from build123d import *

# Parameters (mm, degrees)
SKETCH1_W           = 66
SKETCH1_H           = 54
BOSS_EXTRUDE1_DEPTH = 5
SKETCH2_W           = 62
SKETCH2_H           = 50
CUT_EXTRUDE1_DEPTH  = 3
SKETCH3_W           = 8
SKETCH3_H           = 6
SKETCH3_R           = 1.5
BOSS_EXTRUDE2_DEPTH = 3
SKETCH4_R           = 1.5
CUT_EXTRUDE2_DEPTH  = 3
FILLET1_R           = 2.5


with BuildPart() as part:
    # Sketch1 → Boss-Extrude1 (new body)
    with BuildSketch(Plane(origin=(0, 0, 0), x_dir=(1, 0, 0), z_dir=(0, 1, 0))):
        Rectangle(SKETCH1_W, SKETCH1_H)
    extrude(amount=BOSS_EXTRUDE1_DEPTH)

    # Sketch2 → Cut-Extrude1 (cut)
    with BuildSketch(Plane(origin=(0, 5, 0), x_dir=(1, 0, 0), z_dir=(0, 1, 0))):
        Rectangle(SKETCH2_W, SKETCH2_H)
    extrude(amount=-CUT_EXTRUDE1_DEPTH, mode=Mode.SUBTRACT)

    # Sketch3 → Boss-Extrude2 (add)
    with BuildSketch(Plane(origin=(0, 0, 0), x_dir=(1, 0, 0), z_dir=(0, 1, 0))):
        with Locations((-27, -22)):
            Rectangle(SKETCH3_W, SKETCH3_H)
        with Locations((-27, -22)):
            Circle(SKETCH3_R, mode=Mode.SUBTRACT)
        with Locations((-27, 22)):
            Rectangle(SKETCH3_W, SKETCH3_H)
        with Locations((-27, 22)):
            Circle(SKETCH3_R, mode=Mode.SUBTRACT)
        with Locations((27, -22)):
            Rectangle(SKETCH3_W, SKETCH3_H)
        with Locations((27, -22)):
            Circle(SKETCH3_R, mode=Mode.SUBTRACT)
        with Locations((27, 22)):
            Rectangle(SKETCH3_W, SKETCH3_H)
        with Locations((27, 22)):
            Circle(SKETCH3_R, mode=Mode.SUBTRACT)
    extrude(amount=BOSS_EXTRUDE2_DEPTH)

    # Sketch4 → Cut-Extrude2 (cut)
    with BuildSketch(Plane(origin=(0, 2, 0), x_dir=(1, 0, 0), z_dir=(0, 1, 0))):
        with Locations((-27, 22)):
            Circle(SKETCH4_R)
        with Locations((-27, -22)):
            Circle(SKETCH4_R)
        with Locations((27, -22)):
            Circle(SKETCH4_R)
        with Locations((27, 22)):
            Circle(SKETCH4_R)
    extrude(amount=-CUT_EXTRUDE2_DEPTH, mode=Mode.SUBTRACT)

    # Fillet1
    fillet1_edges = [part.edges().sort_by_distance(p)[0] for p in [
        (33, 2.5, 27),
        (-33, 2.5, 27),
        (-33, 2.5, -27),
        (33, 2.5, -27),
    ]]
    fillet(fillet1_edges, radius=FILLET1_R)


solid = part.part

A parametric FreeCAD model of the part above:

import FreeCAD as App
import Part
import Sketcher


def edges_at(feature, points):
    """Names of the edges that pass closest to the given points."""
    edges = feature.Shape.Edges
    near = lambda p: min(range(len(edges)), key=lambda i: edges[i].distToShape(Part.Vertex(*p))[0])
    return sorted({f"Edge{near(p) + 1}" for p in points})

doc = App.newDocument("Part")
body = doc.addObject("PartDesign::Body", "Body")

sketch1 = body.newObject("Sketcher::SketchObject", "Sketch")
sketch1.AttachmentSupport = (doc.getObject("XZ_Plane"), [""])
sketch1.MapMode = "FlatFace"
sketch1.addGeometry(Part.LineSegment(App.Vector(-33, -27, 0), App.Vector(-33, 27, 0)), False)
sketch1.addGeometry(Part.LineSegment(App.Vector(-33, 27, 0), App.Vector(33, 27, 0)), False)
sketch1.addGeometry(Part.LineSegment(App.Vector(33, 27, 0), App.Vector(33, -27, 0)), False)
sketch1.addGeometry(Part.LineSegment(App.Vector(33, -27, 0), App.Vector(-33, -27, 0)), False)
sketch1.addConstraint(Sketcher.Constraint("Coincident", 0, 2, 1, 1))
sketch1.addConstraint(Sketcher.Constraint("Coincident", 1, 2, 2, 1))
sketch1.addConstraint(Sketcher.Constraint("Coincident", 2, 2, 3, 1))
sketch1.addConstraint(Sketcher.Constraint("Coincident", 3, 2, 0, 1))
sketch1.addConstraint(Sketcher.Constraint("Vertical", 0))
sketch1.addConstraint(Sketcher.Constraint("Horizontal", 1))
sketch1.addConstraint(Sketcher.Constraint("Vertical", 2))
sketch1.addConstraint(Sketcher.Constraint("Horizontal", 3))
sketch1.addConstraint(Sketcher.Constraint("Symmetric", 0, 2, 2, 2, -1, 1))
sketch1.addConstraint(Sketcher.Constraint("DistanceX", 1, 1, 1, 2, 66.0))
sketch1.addConstraint(Sketcher.Constraint("DistanceY", 0, 1, 0, 2, 54.0))
pad1 = body.newObject("PartDesign::Pad", "Pad")
pad1.Profile = sketch1
pad1.Length = 5
pad1.Reversed = True

sketch2 = body.newObject("Sketcher::SketchObject", "Sketch001")
sketch2.AttachmentSupport = (doc.getObject("XZ_Plane"), [""])
sketch2.MapMode = "FlatFace"
sketch2.AttachmentOffset = App.Placement(App.Vector(0, 0, -5), App.Rotation())
sketch2.addGeometry(Part.LineSegment(App.Vector(-31, -25, 0), App.Vector(-31, 25, 0)), False)
sketch2.addGeometry(Part.LineSegment(App.Vector(-31, 25, 0), App.Vector(31, 25, 0)), False)
sketch2.addGeometry(Part.LineSegment(App.Vector(31, 25, 0), App.Vector(31, -25, 0)), False)
sketch2.addGeometry(Part.LineSegment(App.Vector(31, -25, 0), App.Vector(-31, -25, 0)), False)
sketch2.addConstraint(Sketcher.Constraint("Coincident", 0, 2, 1, 1))
sketch2.addConstraint(Sketcher.Constraint("Coincident", 1, 2, 2, 1))
sketch2.addConstraint(Sketcher.Constraint("Coincident", 2, 2, 3, 1))
sketch2.addConstraint(Sketcher.Constraint("Coincident", 3, 2, 0, 1))
sketch2.addConstraint(Sketcher.Constraint("Vertical", 0))
sketch2.addConstraint(Sketcher.Constraint("Horizontal", 1))
sketch2.addConstraint(Sketcher.Constraint("Vertical", 2))
sketch2.addConstraint(Sketcher.Constraint("Horizontal", 3))
sketch2.addConstraint(Sketcher.Constraint("Symmetric", 0, 2, 2, 2, -1, 1))
sketch2.addConstraint(Sketcher.Constraint("DistanceX", 1, 1, 1, 2, 62.0))
sketch2.addConstraint(Sketcher.Constraint("DistanceY", 0, 1, 0, 2, 50.0))
pocket1 = body.newObject("PartDesign::Pocket", "Pocket")
pocket1.Profile = sketch2
pocket1.Length = 3
pocket1.Reversed = True

sketch3 = body.newObject("Sketcher::SketchObject", "Sketch002")
sketch3.AttachmentSupport = (doc.getObject("XZ_Plane"), [""])
sketch3.MapMode = "FlatFace"
sketch3.addGeometry(Part.LineSegment(App.Vector(-31, 19, 0), App.Vector(-31, 25, 0)), False)
sketch3.addGeometry(Part.LineSegment(App.Vector(-31, 25, 0), App.Vector(-23, 25, 0)), False)
sketch3.addGeometry(Part.LineSegment(App.Vector(-23, 25, 0), App.Vector(-23, 19, 0)), False)
sketch3.addGeometry(Part.LineSegment(App.Vector(-23, 19, 0), App.Vector(-31, 19, 0)), False)
sketch3.addGeometry(Part.Circle(App.Vector(-27, 22, 0), App.Vector(0, 0, 1), 1.5), False)
sketch3.addGeometry(Part.LineSegment(App.Vector(-31, -25, 0), App.Vector(-31, -19, 0)), False)
sketch3.addGeometry(Part.LineSegment(App.Vector(-31, -19, 0), App.Vector(-23, -19, 0)), False)
sketch3.addGeometry(Part.LineSegment(App.Vector(-23, -19, 0), App.Vector(-23, -25, 0)), False)
sketch3.addGeometry(Part.LineSegment(App.Vector(-23, -25, 0), App.Vector(-31, -25, 0)), False)
sketch3.addGeometry(Part.Circle(App.Vector(-27, -22, 0), App.Vector(0, 0, 1), 1.5), False)
sketch3.addGeometry(Part.LineSegment(App.Vector(23, 19, 0), App.Vector(23, 25, 0)), False)
sketch3.addGeometry(Part.LineSegment(App.Vector(23, 25, 0), App.Vector(31, 25, 0)), False)
sketch3.addGeometry(Part.LineSegment(App.Vector(31, 25, 0), App.Vector(31, 19, 0)), False)
sketch3.addGeometry(Part.LineSegment(App.Vector(31, 19, 0), App.Vector(23, 19, 0)), False)
sketch3.addGeometry(Part.Circle(App.Vector(27, 22, 0), App.Vector(0, 0, 1), 1.5), False)
sketch3.addGeometry(Part.LineSegment(App.Vector(23, -25, 0), App.Vector(23, -19, 0)), False)
sketch3.addGeometry(Part.LineSegment(App.Vector(23, -19, 0), App.Vector(31, -19, 0)), False)
sketch3.addGeometry(Part.LineSegment(App.Vector(31, -19, 0), App.Vector(31, -25, 0)), False)
sketch3.addGeometry(Part.LineSegment(App.Vector(31, -25, 0), App.Vector(23, -25, 0)), False)
sketch3.addGeometry(Part.Circle(App.Vector(27, -22, 0), App.Vector(0, 0, 1), 1.5), False)
sketch3.addConstraint(Sketcher.Constraint("Coincident", 0, 2, 1, 1))
sketch3.addConstraint(Sketcher.Constraint("Coincident", 1, 2, 2, 1))
sketch3.addConstraint(Sketcher.Constraint("Coincident", 2, 2, 3, 1))
sketch3.addConstraint(Sketcher.Constraint("Coincident", 3, 2, 0, 1))
sketch3.addConstraint(Sketcher.Constraint("Coincident", 5, 2, 6, 1))
sketch3.addConstraint(Sketcher.Constraint("Coincident", 6, 2, 7, 1))
sketch3.addConstraint(Sketcher.Constraint("Coincident", 7, 2, 8, 1))
sketch3.addConstraint(Sketcher.Constraint("Coincident", 8, 2, 5, 1))
sketch3.addConstraint(Sketcher.Constraint("Coincident", 10, 2, 11, 1))
sketch3.addConstraint(Sketcher.Constraint("Coincident", 11, 2, 12, 1))
sketch3.addConstraint(Sketcher.Constraint("Coincident", 12, 2, 13, 1))
sketch3.addConstraint(Sketcher.Constraint("Coincident", 13, 2, 10, 1))
sketch3.addConstraint(Sketcher.Constraint("Coincident", 15, 2, 16, 1))
sketch3.addConstraint(Sketcher.Constraint("Coincident", 16, 2, 17, 1))
sketch3.addConstraint(Sketcher.Constraint("Coincident", 17, 2, 18, 1))
sketch3.addConstraint(Sketcher.Constraint("Coincident", 18, 2, 15, 1))
sketch3.addConstraint(Sketcher.Constraint("Vertical", 0))
sketch3.addConstraint(Sketcher.Constraint("Horizontal", 1))
sketch3.addConstraint(Sketcher.Constraint("Vertical", 2))
sketch3.addConstraint(Sketcher.Constraint("Horizontal", 3))
sketch3.addConstraint(Sketcher.Constraint("Vertical", 5))
sketch3.addConstraint(Sketcher.Constraint("Horizontal", 6))
sketch3.addConstraint(Sketcher.Constraint("Vertical", 7))
sketch3.addConstraint(Sketcher.Constraint("Horizontal", 8))
sketch3.addConstraint(Sketcher.Constraint("Vertical", 10))
sketch3.addConstraint(Sketcher.Constraint("Horizontal", 11))
sketch3.addConstraint(Sketcher.Constraint("Vertical", 12))
sketch3.addConstraint(Sketcher.Constraint("Horizontal", 13))
sketch3.addConstraint(Sketcher.Constraint("Vertical", 15))
sketch3.addConstraint(Sketcher.Constraint("Horizontal", 16))
sketch3.addConstraint(Sketcher.Constraint("Vertical", 17))
sketch3.addConstraint(Sketcher.Constraint("Horizontal", 18))
sketch3.addConstraint(Sketcher.Constraint("Equal", 4, 9))
sketch3.addConstraint(Sketcher.Constraint("Equal", 9, 14))
sketch3.addConstraint(Sketcher.Constraint("Equal", 14, 19))
sketch3.addConstraint(Sketcher.Constraint("Symmetric", 9, 3, 14, 3, -1, 1))
sketch3.addConstraint(Sketcher.Constraint("Symmetric", 4, 3, 19, 3, -1, 1))
sketch3.addConstraint(Sketcher.Constraint("Symmetric", 7, 2, 10, 2, -1, 1))
sketch3.addConstraint(Sketcher.Constraint("Symmetric", 5, 2, 12, 2, -1, 1))
sketch3.addConstraint(Sketcher.Constraint("Symmetric", 2, 2, 15, 2, -1, 1))
sketch3.addConstraint(Sketcher.Constraint("Symmetric", 0, 2, 17, 2, -1, 1))
sketch3.addConstraint(Sketcher.Constraint("Symmetric", 4, 3, 14, 3, -2))
sketch3.addConstraint(Sketcher.Constraint("Symmetric", 1, 2, 10, 2, -2))
sketch3.addConstraint(Sketcher.Constraint("Symmetric", 3, 2, 12, 2, -2))
sketch3.addConstraint(Sketcher.Constraint("Diameter", 4, 3.0))
sketch3.addConstraint(Sketcher.Constraint("DistanceX", 1, 1, 1, 2, 8.0))
sketch3.addConstraint(Sketcher.Constraint("DistanceY", 0, 1, 0, 2, 6.0))
sketch3.addConstraint(Sketcher.Constraint("DistanceX", 4, 3, -1, 1, 27.0))
sketch3.addConstraint(Sketcher.Constraint("DistanceY", -1, 1, 4, 3, 22.0))
sketch3.addConstraint(Sketcher.Constraint("DistanceX", 0, 2, -1, 1, 31.0))
sketch3.addConstraint(Sketcher.Constraint("DistanceY", -1, 1, 0, 2, 25.0))
pad2 = body.newObject("PartDesign::Pad", "Pad001")
pad2.Profile = sketch3
pad2.Length = 3
pad2.Reversed = True

sketch4 = body.newObject("Sketcher::SketchObject", "Sketch003")
sketch4.AttachmentSupport = (doc.getObject("XZ_Plane"), [""])
sketch4.MapMode = "FlatFace"
sketch4.AttachmentOffset = App.Placement(App.Vector(0, 0, -2), App.Rotation())
sketch4.addGeometry(Part.Circle(App.Vector(-27, -22, 0), App.Vector(0, 0, 1), 1.5), False)
sketch4.addGeometry(Part.Circle(App.Vector(-27, 22, 0), App.Vector(0, 0, 1), 1.5), False)
sketch4.addGeometry(Part.Circle(App.Vector(27, 22, 0), App.Vector(0, 0, 1), 1.5), False)
sketch4.addGeometry(Part.Circle(App.Vector(27, -22, 0), App.Vector(0, 0, 1), 1.5), False)
sketch4.addConstraint(Sketcher.Constraint("Equal", 0, 1))
sketch4.addConstraint(Sketcher.Constraint("Equal", 1, 2))
sketch4.addConstraint(Sketcher.Constraint("Equal", 2, 3))
sketch4.addConstraint(Sketcher.Constraint("Symmetric", 0, 3, 2, 3, -1, 1))
sketch4.addConstraint(Sketcher.Constraint("Symmetric", 1, 3, 3, 3, -1, 1))
sketch4.addConstraint(Sketcher.Constraint("Symmetric", 1, 3, 2, 3, -2))
sketch4.addConstraint(Sketcher.Constraint("Diameter", 0, 3.0))
sketch4.addConstraint(Sketcher.Constraint("DistanceX", 0, 3, -1, 1, 27.0))
sketch4.addConstraint(Sketcher.Constraint("DistanceY", 0, 3, -1, 1, 22.0))
pocket2 = body.newObject("PartDesign::Pocket", "Pocket001")
pocket2.Profile = sketch4
pocket2.Length = 3
pocket2.Reversed = True
doc.recompute()

fillet = body.newObject("PartDesign::Fillet", "Fillet")
fillet.Base = (pocket2, edges_at(pocket2, [
    (33, 2.5, 27),
    (-33, 2.5, 27),
    (-33, 2.5, -27),
    (33, 2.5, -27),
]))
fillet.Radius = 2.5

doc.recompute()
